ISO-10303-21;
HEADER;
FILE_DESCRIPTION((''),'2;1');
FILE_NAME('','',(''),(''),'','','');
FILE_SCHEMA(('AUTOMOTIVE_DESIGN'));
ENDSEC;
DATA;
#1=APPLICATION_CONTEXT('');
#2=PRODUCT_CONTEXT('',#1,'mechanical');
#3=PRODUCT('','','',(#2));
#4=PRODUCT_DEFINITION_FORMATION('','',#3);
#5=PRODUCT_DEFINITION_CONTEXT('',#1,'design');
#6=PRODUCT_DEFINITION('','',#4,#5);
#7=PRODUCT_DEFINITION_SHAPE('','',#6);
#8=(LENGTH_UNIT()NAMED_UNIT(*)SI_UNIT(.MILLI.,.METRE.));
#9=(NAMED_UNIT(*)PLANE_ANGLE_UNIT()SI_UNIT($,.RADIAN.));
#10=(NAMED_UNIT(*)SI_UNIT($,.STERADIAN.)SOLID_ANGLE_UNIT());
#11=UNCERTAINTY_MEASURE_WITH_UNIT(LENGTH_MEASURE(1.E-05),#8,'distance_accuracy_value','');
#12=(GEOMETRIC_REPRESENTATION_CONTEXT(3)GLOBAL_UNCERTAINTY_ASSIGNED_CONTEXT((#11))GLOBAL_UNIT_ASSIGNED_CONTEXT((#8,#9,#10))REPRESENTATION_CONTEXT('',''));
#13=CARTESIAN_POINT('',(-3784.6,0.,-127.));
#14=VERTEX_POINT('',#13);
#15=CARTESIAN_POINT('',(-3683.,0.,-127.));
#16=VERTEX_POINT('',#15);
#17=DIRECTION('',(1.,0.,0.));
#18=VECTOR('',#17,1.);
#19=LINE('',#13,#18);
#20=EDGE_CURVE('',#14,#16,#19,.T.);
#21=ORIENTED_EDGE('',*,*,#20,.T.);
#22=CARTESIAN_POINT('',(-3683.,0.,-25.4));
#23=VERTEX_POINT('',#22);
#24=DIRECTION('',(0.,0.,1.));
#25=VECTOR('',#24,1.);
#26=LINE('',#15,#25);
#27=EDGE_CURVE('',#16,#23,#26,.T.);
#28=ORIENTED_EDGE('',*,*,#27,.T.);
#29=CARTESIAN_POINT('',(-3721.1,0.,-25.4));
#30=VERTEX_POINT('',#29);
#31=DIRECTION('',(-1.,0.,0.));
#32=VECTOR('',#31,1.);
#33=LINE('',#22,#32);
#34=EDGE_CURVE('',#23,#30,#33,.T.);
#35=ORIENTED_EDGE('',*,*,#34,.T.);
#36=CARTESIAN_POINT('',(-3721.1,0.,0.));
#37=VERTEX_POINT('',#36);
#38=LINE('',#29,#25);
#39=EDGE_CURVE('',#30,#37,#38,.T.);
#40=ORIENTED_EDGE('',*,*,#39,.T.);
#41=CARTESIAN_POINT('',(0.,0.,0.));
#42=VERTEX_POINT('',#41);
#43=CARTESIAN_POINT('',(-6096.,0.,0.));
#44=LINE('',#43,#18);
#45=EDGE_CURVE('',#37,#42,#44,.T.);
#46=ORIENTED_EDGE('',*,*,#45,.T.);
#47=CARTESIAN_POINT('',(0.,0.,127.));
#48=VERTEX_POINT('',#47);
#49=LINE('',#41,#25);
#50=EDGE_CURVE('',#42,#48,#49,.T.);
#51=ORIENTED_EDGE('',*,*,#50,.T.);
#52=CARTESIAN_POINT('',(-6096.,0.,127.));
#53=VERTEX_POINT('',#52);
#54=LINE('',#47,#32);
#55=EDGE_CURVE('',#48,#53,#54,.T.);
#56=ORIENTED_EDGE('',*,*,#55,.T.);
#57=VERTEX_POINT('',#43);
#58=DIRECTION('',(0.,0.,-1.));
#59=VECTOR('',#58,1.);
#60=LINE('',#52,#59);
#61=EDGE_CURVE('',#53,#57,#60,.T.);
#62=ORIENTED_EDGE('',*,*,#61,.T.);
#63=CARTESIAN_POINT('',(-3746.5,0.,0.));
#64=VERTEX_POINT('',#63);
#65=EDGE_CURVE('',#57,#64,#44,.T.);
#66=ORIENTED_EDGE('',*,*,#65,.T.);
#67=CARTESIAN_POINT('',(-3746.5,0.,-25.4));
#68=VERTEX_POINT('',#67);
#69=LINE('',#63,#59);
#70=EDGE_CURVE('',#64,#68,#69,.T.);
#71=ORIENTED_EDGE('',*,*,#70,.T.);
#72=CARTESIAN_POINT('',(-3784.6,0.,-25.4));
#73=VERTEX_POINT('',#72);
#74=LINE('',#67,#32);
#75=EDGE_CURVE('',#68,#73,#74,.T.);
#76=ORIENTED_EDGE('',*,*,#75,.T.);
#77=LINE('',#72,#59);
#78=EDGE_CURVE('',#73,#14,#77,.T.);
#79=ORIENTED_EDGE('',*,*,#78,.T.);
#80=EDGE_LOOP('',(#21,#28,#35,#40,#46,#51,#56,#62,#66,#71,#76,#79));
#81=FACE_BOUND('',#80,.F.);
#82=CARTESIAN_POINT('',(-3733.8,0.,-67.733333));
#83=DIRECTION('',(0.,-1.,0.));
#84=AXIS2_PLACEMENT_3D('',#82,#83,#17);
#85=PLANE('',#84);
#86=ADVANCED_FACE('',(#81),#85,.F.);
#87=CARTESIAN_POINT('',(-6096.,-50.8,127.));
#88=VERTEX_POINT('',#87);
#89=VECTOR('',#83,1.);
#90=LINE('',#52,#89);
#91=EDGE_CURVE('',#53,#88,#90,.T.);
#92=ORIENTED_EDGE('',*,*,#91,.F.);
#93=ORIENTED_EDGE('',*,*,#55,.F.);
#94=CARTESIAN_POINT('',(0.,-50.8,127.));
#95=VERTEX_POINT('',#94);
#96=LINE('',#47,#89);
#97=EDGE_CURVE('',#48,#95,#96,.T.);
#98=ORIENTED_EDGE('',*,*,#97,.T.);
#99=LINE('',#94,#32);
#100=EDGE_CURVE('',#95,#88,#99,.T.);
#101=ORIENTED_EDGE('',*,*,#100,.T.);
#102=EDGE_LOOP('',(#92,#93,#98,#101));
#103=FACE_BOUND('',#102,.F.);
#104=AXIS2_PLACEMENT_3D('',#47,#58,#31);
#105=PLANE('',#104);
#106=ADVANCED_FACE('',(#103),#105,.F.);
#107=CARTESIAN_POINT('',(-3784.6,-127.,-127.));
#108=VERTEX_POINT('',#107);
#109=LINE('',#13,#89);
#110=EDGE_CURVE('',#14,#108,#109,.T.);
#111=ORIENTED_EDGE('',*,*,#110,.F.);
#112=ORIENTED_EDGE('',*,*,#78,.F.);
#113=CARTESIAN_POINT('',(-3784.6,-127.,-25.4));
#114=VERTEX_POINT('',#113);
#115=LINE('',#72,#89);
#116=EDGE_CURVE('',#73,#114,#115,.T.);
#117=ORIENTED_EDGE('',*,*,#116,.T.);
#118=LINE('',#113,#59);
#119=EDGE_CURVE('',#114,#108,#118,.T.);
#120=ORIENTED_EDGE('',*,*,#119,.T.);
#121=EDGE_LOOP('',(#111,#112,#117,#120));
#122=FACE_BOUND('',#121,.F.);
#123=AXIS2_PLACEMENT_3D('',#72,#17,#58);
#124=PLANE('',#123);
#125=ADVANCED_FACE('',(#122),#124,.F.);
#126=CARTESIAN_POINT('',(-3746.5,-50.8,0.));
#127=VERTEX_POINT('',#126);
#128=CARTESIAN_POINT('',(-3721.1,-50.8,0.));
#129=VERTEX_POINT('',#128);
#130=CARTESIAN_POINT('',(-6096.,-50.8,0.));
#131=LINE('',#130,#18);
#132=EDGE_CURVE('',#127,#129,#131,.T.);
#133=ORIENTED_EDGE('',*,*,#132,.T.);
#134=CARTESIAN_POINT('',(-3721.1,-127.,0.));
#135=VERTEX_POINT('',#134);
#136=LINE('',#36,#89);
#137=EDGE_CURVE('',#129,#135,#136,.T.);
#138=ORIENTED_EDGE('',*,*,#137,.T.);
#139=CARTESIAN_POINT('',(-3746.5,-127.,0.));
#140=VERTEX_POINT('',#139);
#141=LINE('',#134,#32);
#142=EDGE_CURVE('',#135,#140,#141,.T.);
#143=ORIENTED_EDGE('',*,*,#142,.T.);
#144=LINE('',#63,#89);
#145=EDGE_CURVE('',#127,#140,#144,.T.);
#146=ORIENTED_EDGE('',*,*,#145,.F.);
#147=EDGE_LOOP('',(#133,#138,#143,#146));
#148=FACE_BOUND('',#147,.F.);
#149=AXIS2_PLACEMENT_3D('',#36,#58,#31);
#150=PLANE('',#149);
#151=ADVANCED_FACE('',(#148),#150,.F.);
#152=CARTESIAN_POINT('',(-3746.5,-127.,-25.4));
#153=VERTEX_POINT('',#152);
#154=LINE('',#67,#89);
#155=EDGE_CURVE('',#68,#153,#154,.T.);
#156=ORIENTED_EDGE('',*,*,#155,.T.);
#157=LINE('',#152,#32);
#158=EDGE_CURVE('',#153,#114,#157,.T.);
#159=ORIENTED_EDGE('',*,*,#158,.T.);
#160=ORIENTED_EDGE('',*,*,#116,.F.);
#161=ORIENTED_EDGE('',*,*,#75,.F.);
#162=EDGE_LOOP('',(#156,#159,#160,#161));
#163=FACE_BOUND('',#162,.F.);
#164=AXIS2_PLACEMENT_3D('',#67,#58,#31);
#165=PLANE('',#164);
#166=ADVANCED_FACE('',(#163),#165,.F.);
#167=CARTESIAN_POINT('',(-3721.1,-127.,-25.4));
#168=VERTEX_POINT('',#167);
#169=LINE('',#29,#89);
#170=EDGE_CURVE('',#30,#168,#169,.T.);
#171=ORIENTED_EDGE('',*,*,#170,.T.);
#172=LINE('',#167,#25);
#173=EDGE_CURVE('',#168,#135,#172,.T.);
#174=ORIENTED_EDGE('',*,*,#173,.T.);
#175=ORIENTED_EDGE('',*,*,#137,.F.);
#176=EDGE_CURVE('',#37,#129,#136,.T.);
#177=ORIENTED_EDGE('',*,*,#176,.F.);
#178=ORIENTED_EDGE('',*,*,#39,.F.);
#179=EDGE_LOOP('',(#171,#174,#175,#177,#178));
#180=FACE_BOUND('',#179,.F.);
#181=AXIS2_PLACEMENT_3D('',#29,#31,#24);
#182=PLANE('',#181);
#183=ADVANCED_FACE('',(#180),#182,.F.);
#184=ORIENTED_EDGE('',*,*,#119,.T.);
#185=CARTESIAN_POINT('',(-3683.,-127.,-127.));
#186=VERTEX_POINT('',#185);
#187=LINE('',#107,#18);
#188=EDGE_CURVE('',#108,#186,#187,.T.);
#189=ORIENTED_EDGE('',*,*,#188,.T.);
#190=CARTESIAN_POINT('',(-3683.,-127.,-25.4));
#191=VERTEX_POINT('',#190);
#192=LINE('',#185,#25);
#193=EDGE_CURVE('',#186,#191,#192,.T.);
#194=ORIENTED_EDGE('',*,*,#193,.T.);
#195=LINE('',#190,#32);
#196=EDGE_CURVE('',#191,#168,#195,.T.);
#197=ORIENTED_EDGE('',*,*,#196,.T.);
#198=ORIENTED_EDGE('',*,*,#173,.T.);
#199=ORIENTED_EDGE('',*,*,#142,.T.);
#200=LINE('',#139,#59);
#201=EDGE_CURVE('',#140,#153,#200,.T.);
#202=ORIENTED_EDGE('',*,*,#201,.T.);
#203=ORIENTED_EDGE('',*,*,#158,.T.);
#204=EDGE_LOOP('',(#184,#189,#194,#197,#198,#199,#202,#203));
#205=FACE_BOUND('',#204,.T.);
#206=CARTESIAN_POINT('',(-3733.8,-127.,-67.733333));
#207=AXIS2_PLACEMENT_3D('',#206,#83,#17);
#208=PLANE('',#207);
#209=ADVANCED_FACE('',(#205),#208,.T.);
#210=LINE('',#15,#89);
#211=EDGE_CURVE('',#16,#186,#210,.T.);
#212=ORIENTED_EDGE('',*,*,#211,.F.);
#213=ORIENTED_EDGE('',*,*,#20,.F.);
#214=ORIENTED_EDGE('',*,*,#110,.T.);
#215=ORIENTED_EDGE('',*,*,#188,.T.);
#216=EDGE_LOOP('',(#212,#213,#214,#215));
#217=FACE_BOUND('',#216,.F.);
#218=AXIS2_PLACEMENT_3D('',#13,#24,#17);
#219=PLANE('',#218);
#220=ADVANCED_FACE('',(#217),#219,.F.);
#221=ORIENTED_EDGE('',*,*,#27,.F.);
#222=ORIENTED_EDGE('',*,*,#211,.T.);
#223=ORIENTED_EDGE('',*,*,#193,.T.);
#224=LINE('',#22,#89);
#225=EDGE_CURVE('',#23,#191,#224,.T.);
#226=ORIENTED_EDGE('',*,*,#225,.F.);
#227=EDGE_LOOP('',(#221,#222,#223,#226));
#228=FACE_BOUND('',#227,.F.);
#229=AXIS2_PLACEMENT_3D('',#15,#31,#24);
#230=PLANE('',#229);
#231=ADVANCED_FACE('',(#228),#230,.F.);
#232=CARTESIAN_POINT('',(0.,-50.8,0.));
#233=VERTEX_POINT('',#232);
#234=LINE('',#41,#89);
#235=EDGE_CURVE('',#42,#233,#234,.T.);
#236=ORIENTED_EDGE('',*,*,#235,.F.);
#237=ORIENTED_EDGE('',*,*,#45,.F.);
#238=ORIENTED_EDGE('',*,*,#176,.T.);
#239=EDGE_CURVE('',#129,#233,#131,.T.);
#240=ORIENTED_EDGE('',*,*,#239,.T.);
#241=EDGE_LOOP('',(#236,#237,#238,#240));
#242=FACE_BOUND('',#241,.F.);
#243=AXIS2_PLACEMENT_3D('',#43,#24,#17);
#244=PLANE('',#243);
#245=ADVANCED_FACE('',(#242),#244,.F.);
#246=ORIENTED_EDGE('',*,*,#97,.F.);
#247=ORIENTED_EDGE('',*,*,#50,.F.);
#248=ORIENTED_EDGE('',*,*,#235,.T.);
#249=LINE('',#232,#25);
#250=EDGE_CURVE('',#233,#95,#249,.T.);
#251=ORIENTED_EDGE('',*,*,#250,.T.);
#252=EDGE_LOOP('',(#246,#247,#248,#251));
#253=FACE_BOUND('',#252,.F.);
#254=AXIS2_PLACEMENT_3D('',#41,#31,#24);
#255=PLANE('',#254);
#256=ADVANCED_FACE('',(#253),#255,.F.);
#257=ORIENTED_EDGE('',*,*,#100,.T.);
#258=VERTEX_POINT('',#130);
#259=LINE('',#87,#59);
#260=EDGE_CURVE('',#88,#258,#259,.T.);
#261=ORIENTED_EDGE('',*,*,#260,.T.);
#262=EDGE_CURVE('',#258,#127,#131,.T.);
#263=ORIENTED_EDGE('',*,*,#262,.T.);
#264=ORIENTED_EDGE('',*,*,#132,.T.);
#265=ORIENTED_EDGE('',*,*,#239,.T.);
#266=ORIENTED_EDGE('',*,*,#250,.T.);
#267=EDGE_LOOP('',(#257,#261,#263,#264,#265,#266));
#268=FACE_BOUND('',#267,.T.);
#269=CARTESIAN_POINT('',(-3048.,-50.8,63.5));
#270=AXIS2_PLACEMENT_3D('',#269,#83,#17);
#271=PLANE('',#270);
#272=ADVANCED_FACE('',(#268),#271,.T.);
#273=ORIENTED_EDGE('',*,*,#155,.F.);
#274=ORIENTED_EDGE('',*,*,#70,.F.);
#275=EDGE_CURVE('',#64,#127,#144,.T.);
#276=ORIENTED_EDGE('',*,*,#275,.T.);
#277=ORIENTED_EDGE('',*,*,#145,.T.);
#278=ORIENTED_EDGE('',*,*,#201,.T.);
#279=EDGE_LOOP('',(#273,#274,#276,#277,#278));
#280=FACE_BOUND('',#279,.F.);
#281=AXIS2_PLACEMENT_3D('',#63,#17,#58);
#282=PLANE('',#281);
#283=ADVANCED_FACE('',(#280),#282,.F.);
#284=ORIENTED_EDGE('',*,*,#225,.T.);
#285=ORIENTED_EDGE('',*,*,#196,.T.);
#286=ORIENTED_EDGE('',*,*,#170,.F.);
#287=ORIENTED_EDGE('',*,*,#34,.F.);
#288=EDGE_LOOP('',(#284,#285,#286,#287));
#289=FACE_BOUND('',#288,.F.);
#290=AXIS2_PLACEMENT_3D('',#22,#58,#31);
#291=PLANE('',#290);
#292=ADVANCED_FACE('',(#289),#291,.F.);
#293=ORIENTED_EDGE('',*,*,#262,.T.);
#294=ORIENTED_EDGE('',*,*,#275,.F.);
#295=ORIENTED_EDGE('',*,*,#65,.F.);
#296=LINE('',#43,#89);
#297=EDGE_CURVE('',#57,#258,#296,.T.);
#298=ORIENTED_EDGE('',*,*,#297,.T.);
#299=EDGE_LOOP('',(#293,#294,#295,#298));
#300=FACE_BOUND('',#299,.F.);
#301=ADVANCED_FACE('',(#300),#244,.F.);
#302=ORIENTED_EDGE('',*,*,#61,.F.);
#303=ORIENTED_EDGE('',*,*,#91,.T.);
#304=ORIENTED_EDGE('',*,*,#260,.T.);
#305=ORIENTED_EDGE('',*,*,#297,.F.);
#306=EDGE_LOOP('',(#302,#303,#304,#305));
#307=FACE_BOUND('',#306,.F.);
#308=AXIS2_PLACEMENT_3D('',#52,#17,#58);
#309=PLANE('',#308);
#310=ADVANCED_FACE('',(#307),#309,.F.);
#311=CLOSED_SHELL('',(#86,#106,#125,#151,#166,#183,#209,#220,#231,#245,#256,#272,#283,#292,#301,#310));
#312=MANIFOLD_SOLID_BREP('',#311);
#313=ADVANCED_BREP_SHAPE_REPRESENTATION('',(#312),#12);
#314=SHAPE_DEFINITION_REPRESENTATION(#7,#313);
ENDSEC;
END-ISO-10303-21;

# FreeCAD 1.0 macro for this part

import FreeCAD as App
import Part
import Sketcher
Q = App.Units.Quantity


def add_polygon(sketch, points):
    """Adds a closed chain of lines whose ends are joined by coincident constraints."""
    first, n = sketch.GeometryCount, len(points)
    for a, b in zip(points, points[1:] + points[:1]):
        sketch.addGeometry(Part.LineSegment(App.Vector(*a, 0), App.Vector(*b, 0)), False)
    for i in range(n):
        sketch.addConstraint(Sketcher.Constraint("Coincident", first + i, 2, first + (i + 1) % n, 1))

doc = App.newDocument("Part")
body = doc.addObject("PartDesign::Body", "Body")

# Sketch on XZ plane
sketch1 = body.newObject("Sketcher::SketchObject", "Sketch")
sketch1.AttachmentSupport = (doc.getObject("XZ_Plane"), [""])
sketch1.MapMode = "FlatFace"
add_polygon(sketch1, [(0, 0), (0, 127), (-6096, 127), (-6096, 0)])  # lines 0-3
sketch1.addConstraint([
    Sketcher.Constraint("Vertical", 0),
    Sketcher.Constraint("Horizontal", 1),
    Sketcher.Constraint("Vertical", 2),
    Sketcher.Constraint("Horizontal", 3),
    Sketcher.Constraint("Coincident", 3, 2, -1, 1),
    Sketcher.Constraint("DistanceX", 1, 2, 1, 1, Q("240 in")),
    Sketcher.Constraint("DistanceY", 0, 1, 0, 2, Q("5 in")),
])
pad1 = body.newObject("PartDesign::Pad", "Pad")
pad1.Profile = sketch1
pad1.Length = Q("2 in")

# Sketch on XZ plane
sketch2 = body.newObject("Sketcher::SketchObject", "Sketch001")
sketch2.AttachmentSupport = (doc.getObject("XZ_Plane"), [""])
sketch2.MapMode = "FlatFace"
add_polygon(sketch2, [(-3721, -25), (-3721, 0), (-3746, 0), (-3746, -25), (-3785, -25), (-3785, -127), (-3683, -127), (-3683, -25)])  # lines 0-7
sketch2.addConstraint([
    Sketcher.Constraint("Vertical", 0),
    Sketcher.Constraint("Horizontal", 1),
    Sketcher.Constraint("Vertical", 2),
    Sketcher.Constraint("Horizontal", 3),
    Sketcher.Constraint("Vertical", 4),
    Sketcher.Constraint("Horizontal", 5),
    Sketcher.Constraint("Vertical", 6),
    Sketcher.Constraint("Horizontal", 7),
    Sketcher.Constraint("PointOnObject", 0, 2, -1),
    Sketcher.Constraint("Horizontal", 3, 2, 6, 2),
    Sketcher.Constraint("Equal", 3, 7),
    Sketcher.Constraint("Equal", 1, 0),
    Sketcher.Constraint("Equal", 5, 4),
    Sketcher.Constraint("DistanceX", 1, 2, 1, 1, Q("1 in")),
    Sketcher.Constraint("DistanceX", 5, 1, 5, 2, Q("4 in")),
    Sketcher.Constraint("DistanceX", 3, 2, -1, 1, Q("149 in")),
])
pad2 = body.newObject("PartDesign::Pad", "Pad001")
pad2.Profile = sketch2
pad2.Length = Q("5 in")

doc.recompute()
